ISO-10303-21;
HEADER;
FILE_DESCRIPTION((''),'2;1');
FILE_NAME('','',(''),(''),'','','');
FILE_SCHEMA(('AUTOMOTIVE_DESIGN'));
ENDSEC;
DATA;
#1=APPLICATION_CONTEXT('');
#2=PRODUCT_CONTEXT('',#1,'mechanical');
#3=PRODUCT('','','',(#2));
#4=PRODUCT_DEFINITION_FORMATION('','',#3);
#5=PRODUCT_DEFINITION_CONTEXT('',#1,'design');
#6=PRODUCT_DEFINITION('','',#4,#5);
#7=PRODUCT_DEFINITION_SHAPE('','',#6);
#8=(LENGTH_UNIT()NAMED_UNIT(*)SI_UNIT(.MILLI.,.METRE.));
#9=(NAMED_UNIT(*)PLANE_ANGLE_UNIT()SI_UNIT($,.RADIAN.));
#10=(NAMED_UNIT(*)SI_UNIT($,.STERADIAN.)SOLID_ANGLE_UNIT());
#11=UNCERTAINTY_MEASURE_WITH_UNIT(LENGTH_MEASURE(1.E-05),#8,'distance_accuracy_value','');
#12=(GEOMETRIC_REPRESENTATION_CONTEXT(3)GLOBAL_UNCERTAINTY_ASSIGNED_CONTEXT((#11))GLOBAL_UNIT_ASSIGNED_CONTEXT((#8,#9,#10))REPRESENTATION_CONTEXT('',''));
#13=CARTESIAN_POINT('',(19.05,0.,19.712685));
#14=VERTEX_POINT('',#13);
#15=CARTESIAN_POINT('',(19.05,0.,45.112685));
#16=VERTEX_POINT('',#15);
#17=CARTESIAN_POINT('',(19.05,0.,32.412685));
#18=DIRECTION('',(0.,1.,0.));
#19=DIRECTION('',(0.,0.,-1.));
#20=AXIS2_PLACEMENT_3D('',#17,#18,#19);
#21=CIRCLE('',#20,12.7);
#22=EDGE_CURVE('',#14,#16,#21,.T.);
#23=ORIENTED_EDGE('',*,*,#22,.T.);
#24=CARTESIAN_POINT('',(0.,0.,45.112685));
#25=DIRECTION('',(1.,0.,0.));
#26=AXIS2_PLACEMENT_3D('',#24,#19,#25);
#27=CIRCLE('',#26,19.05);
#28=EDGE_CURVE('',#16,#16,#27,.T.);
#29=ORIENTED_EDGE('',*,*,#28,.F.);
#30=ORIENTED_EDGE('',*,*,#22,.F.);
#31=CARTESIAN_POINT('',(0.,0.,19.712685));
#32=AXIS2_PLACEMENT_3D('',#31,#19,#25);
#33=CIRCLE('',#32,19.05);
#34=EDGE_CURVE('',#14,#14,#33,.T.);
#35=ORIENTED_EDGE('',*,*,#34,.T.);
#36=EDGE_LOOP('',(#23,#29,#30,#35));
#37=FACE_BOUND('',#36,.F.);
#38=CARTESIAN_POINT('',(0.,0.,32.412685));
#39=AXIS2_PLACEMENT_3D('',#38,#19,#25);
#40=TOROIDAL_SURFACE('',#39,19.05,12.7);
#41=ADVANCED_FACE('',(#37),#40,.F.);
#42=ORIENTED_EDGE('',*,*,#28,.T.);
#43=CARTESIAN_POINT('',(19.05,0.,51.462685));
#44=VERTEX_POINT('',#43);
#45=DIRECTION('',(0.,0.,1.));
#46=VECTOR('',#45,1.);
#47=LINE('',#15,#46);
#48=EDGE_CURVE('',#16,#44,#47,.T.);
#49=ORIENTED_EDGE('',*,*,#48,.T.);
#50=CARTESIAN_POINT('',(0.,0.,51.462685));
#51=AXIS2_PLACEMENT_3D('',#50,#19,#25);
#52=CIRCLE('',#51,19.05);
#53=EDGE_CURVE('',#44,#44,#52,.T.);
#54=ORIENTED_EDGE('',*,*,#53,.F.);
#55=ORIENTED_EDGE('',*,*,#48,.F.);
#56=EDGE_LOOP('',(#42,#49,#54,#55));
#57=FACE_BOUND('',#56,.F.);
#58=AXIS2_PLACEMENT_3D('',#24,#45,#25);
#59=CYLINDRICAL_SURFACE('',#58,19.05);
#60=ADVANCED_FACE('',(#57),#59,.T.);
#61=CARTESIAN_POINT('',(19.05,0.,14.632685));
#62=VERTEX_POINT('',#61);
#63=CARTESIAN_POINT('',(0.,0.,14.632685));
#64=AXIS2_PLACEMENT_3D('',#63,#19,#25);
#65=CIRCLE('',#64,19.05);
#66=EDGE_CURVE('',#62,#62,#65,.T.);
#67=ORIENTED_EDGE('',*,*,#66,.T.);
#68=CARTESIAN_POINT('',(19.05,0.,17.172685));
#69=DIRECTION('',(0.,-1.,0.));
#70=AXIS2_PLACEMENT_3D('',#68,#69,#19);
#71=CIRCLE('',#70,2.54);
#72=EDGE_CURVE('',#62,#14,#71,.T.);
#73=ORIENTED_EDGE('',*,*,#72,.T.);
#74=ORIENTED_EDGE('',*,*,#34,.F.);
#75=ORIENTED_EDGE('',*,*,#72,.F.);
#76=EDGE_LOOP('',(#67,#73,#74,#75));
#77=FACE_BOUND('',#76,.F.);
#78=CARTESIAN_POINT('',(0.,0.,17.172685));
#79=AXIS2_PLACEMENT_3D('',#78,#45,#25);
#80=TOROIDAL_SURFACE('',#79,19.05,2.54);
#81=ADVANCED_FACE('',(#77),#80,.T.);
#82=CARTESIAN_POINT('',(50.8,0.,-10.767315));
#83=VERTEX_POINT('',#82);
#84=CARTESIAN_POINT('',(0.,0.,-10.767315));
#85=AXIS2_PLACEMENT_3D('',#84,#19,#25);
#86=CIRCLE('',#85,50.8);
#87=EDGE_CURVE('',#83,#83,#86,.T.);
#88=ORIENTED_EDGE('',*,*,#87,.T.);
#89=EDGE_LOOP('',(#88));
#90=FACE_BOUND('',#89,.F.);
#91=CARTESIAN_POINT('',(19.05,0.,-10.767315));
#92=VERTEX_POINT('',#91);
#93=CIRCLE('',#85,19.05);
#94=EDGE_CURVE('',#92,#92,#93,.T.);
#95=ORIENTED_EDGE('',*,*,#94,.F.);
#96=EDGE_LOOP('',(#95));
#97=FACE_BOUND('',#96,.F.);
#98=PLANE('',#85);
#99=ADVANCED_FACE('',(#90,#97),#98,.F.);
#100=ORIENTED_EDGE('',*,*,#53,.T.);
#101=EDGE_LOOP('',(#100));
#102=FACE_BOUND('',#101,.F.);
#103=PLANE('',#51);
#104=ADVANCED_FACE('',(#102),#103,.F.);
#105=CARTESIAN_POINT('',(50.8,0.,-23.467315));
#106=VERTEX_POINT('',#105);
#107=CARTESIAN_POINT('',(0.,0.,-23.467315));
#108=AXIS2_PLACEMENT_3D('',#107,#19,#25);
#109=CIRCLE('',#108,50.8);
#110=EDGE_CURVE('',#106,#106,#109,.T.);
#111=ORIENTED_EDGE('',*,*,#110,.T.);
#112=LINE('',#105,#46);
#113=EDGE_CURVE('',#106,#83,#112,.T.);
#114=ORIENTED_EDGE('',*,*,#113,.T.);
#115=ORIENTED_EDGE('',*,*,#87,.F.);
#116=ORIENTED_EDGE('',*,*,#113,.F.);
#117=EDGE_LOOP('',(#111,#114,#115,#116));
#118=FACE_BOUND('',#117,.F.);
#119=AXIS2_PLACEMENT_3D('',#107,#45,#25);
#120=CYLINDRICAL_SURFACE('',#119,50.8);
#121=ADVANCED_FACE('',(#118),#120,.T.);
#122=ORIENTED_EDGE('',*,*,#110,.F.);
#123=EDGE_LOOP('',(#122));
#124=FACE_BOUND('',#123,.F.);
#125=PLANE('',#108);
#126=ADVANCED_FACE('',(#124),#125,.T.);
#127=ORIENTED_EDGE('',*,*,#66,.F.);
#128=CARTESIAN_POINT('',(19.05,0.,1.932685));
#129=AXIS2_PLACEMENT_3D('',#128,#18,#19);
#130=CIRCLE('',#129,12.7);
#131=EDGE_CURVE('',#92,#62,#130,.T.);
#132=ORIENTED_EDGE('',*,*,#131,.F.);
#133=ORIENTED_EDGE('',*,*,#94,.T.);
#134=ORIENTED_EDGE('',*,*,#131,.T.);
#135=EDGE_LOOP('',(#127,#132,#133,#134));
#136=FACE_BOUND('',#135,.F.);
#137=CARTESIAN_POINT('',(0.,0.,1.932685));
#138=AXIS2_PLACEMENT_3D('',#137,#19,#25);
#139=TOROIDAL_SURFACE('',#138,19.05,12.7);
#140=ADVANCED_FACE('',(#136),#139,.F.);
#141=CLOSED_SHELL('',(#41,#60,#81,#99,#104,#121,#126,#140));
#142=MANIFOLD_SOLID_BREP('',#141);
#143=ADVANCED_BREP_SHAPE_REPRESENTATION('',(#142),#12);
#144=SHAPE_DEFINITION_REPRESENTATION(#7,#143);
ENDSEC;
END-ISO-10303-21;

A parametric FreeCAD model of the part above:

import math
import FreeCAD as App
import Part
import Sketcher

V = App.Vector
Q = App.Units.Quantity

doc = App.newDocument("Part")
body = doc.addObject("PartDesign::Body", "Body")

# Sketch on XZ plane
sketch1 = doc.addObject("Sketcher::SketchObject", "Sketch")
body.addObject(sketch1)
sketch1.AttachmentSupport = (doc.XZ_Plane, [""])
sketch1.MapMode = "FlatFace"
sketch1.addGeometry(Part.LineSegment(V(0, 51.462685, 0), V(0, -23.467315, 0)), False)
sketch1.addGeometry(Part.LineSegment(V(0, -23.467315, 0), V(50.8, -23.467315, 0)), False)
sketch1.addGeometry(Part.LineSegment(V(50.8, -23.467315, 0), V(50.8, -10.767315, 0)), False)
sketch1.addGeometry(Part.LineSegment(V(50.8, -10.767315, 0), V(19.05, -10.767315, 0)), False)
sketch1.addGeometry(Part.ArcOfCircle(Part.Circle(V(19.05, 1.932685, 0), V(0, 0, 1), 12.7), math.radians(90), math.radians(270)), False)
sketch1.addGeometry(Part.ArcOfCircle(Part.Circle(V(19.05, 17.172685, 0), V(0, 0, 1), 2.54), math.radians(-90), math.radians(90)), False)
sketch1.addGeometry(Part.ArcOfCircle(Part.Circle(V(19.05, 32.412685, 0), V(0, 0, 1), 12.7), math.radians(90), math.radians(270)), False)
sketch1.addGeometry(Part.LineSegment(V(19.05, 45.112685, 0), V(19.05, 51.462685, 0)), False)
sketch1.addGeometry(Part.LineSegment(V(19.05, 51.462685, 0), V(0, 51.462685, 0)), False)
sketch1.addConstraint(Sketcher.Constraint("Coincident", 0, 2, 1, 1))
sketch1.addConstraint(Sketcher.Constraint("Coincident", 1, 2, 2, 1))
sketch1.addConstraint(Sketcher.Constraint("Coincident", 2, 2, 3, 1))
sketch1.addConstraint(Sketcher.Constraint("Tangent", 3, 2, 4, 2))
sketch1.addConstraint(Sketcher.Constraint("Tangent", 4, 1, 5, 1))
sketch1.addConstraint(Sketcher.Constraint("Tangent", 5, 2, 6, 2))
sketch1.addConstraint(Sketcher.Constraint("Coincident", 6, 1, 7, 1))
sketch1.addConstraint(Sketcher.Constraint("Coincident", 7, 2, 8, 1))
sketch1.addConstraint(Sketcher.Constraint("Coincident", 8, 2, 0, 1))
sketch1.addConstraint(Sketcher.Constraint("Vertical", 0))
sketch1.addConstraint(Sketcher.Constraint("Horizontal", 1))
sketch1.addConstraint(Sketcher.Constraint("Vertical", 2))
sketch1.addConstraint(Sketcher.Constraint("Horizontal", 3))
sketch1.addConstraint(Sketcher.Constraint("Vertical", 7))
sketch1.addConstraint(Sketcher.Constraint("Horizontal", 8))
sketch1.addConstraint(Sketcher.Constraint("Equal", 4, 6))
sketch1.addConstraint(Sketcher.Constraint("PointOnObject", 0, 2, -2))
sketch1.addConstraint(Sketcher.Constraint("Vertical", 4, 3, 5, 3))
sketch1.addConstraint(Sketcher.Constraint("Vertical", 5, 3, 6, 3))
sketch1.addConstraint(Sketcher.Constraint("Vertical", 5, 2, 6, 1))
sketch1.addConstraint(Sketcher.Constraint("Radius", 4, Q("0.5 in")))
sketch1.addConstraint(Sketcher.Constraint("Radius", 5, Q("0.1 in")))
sketch1.addConstraint(Sketcher.Constraint("DistanceX", 1, 1, 1, 2, Q("2 in")))
sketch1.addConstraint(Sketcher.Constraint("DistanceY", 2, 1, 2, 2, Q("0.5 in")))
sketch1.addConstraint(Sketcher.Constraint("DistanceX", 3, 2, 3, 1, Q("1.25 in")))
sketch1.addConstraint(Sketcher.Constraint("DistanceY", 0, 2, 0, 1, Q("2.95 in")))
sketch1.addConstraint(Sketcher.Constraint("DistanceY", -1, 1, 4, 3, 1.932685))
revolution = doc.addObject("PartDesign::Revolution", "Revolution")
body.addObject(revolution)
revolution.Profile = sketch1
revolution.ReferenceAxis = (sketch1, ["V_Axis"])
revolution.Angle = 360

doc.recompute()
